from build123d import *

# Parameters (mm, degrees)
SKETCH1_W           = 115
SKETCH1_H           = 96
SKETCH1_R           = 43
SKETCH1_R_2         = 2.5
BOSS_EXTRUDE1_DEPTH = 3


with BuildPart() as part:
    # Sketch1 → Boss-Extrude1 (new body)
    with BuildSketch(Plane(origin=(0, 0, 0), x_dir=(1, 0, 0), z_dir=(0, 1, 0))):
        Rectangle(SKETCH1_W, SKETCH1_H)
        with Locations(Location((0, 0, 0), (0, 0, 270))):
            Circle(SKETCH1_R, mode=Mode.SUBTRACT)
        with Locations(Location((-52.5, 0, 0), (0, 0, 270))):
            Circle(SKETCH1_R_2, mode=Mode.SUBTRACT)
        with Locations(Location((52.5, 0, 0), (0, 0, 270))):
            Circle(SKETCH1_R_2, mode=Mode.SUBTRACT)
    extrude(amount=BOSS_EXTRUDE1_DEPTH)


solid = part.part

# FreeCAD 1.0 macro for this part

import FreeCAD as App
import Part
import Sketcher

V = App.Vector
Q = App.Units.Quantity

doc = App.newDocument("Part")
body = doc.addObject("PartDesign::Body", "Body")

sketch1 = doc.addObject("Sketcher::SketchObject", "Sketch")
body.addObject(sketch1)
sketch1.AttachmentSupport = (doc.XZ_Plane, [""])
sketch1.MapMode = "FlatFace"
sketch1.addGeometry(Part.LineSegment(V(-57.5, -48, 0), V(-57.5, 48, 0)), False)
sketch1.addGeometry(Part.LineSegment(V(-57.5, 48, 0), V(57.5, 48, 0)), False)
sketch1.addGeometry(Part.LineSegment(V(57.5, 48, 0), V(57.5, -48, 0)), False)
sketch1.addGeometry(Part.LineSegment(V(57.5, -48, 0), V(-57.5, -48, 0)), False)
sketch1.addGeometry(Part.Circle(V(-52.5, 0, 0), V(0, 0, 1), 2.5), False)
sketch1.addGeometry(Part.Circle(V(0, 0, 0), V(0, 0, 1), 43), False)
sketch1.addGeometry(Part.Circle(V(52.5, 0, 0), V(0, 0, 1), 2.5), False)
sketch1.addConstraint(Sketcher.Constraint("Coincident", 0, 2, 1, 1))
sketch1.addConstraint(Sketcher.Constraint("Coincident", 1, 2, 2, 1))
sketch1.addConstraint(Sketcher.Constraint("Coincident", 2, 2, 3, 1))
sketch1.addConstraint(Sketcher.Constraint("Coincident", 3, 2, 0, 1))
sketch1.addConstraint(Sketcher.Constraint("Vertical", 0))
sketch1.addConstraint(Sketcher.Constraint("Horizontal", 1))
sketch1.addConstraint(Sketcher.Constraint("Vertical", 2))
sketch1.addConstraint(Sketcher.Constraint("Horizontal", 3))
sketch1.addConstraint(Sketcher.Constraint("Coincident", 5, 3, -1, 1))
sketch1.addConstraint(Sketcher.Constraint("Equal", 4, 6))
sketch1.addConstraint(Sketcher.Constraint("Symmetric", 4, 3, 6, 3, -1, 1))
sketch1.addConstraint(Sketcher.Constraint("Symmetric", 0, 2, 2, 2, -1, 1))
sketch1.addConstraint(Sketcher.Constraint("PointOnObject", 4, 3, -1))
sketch1.addConstraint(Sketcher.Constraint("Diameter", 4, Q("5 mm")))
sketch1.addConstraint(Sketcher.Constraint("Diameter", 5, Q("86 mm")))
sketch1.addConstraint(Sketcher.Constraint("DistanceX", 1, 1, 1, 2, Q("115 mm")))
sketch1.addConstraint(Sketcher.Constraint("DistanceY", 0, 1, 0, 2, Q("96 mm")))
sketch1.addConstraint(Sketcher.Constraint("DistanceX", 4, 3, 6, 3, Q("105 mm")))
pad1 = doc.addObject("PartDesign::Pad", "Pad")
body.addObject(pad1)
pad1.Profile = sketch1
pad1.Length = 3
pad1.Reversed = True

doc.recompute()
